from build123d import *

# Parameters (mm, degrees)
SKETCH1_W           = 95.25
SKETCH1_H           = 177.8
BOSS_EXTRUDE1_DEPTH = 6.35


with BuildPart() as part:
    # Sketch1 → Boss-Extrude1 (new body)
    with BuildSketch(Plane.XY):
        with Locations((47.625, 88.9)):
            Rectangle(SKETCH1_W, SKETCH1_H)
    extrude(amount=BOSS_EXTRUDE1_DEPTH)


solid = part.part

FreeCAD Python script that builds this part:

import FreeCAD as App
import Part
import Sketcher
Q = App.Units.Quantity

doc = App.newDocument("Part")
body = doc.addObject("PartDesign::Body", "Body")

sketch1 = doc.addObject("Sketcher::SketchObject", "Sketch")
body.addObject(sketch1)
sketch1.AttachmentSupport = (doc.XY_Plane, [""])
sketch1.MapMode = "FlatFace"
sketch1.addGeometry(Part.LineSegment(App.Vector(0, 178, 0), App.Vector(0, 0, 0)), False)
sketch1.addGeometry(Part.LineSegment(App.Vector(0, 0, 0), App.Vector(95, 0, 0)), False)
sketch1.addGeometry(Part.LineSegment(App.Vector(95, 0, 0), App.Vector(95, 178, 0)), False)
sketch1.addGeometry(Part.LineSegment(App.Vector(95, 178, 0), App.Vector(0, 178, 0)), False)
sketch1.addConstraint(Sketcher.Constraint("Coincident", 0, 2, 1, 1))
sketch1.addConstraint(Sketcher.Constraint("Coincident", 1, 2, 2, 1))
sketch1.addConstraint(Sketcher.Constraint("Coincident", 2, 2, 3, 1))
sketch1.addConstraint(Sketcher.Constraint("Coincident", 3, 2, 0, 1))
sketch1.addConstraint(Sketcher.Constraint("Vertical", 0))
sketch1.addConstraint(Sketcher.Constraint("Horizontal", 1))
sketch1.addConstraint(Sketcher.Constraint("Vertical", 2))
sketch1.addConstraint(Sketcher.Constraint("Horizontal", 3))
sketch1.addConstraint(Sketcher.Constraint("Coincident", 0, 2, -1, 1))
sketch1.addConstraint(Sketcher.Constraint("DistanceY", 0, 2, 0, 1, Q("7 in")))
sketch1.addConstraint(Sketcher.Constraint("DistanceX", 1, 1, 1, 2, Q("3.75 in")))
pad1 = doc.addObject("PartDesign::Pad", "Pad")
body.addObject(pad1)
pad1.Profile = sketch1
pad1.Length = Q("0.25 in")

doc.recompute()
